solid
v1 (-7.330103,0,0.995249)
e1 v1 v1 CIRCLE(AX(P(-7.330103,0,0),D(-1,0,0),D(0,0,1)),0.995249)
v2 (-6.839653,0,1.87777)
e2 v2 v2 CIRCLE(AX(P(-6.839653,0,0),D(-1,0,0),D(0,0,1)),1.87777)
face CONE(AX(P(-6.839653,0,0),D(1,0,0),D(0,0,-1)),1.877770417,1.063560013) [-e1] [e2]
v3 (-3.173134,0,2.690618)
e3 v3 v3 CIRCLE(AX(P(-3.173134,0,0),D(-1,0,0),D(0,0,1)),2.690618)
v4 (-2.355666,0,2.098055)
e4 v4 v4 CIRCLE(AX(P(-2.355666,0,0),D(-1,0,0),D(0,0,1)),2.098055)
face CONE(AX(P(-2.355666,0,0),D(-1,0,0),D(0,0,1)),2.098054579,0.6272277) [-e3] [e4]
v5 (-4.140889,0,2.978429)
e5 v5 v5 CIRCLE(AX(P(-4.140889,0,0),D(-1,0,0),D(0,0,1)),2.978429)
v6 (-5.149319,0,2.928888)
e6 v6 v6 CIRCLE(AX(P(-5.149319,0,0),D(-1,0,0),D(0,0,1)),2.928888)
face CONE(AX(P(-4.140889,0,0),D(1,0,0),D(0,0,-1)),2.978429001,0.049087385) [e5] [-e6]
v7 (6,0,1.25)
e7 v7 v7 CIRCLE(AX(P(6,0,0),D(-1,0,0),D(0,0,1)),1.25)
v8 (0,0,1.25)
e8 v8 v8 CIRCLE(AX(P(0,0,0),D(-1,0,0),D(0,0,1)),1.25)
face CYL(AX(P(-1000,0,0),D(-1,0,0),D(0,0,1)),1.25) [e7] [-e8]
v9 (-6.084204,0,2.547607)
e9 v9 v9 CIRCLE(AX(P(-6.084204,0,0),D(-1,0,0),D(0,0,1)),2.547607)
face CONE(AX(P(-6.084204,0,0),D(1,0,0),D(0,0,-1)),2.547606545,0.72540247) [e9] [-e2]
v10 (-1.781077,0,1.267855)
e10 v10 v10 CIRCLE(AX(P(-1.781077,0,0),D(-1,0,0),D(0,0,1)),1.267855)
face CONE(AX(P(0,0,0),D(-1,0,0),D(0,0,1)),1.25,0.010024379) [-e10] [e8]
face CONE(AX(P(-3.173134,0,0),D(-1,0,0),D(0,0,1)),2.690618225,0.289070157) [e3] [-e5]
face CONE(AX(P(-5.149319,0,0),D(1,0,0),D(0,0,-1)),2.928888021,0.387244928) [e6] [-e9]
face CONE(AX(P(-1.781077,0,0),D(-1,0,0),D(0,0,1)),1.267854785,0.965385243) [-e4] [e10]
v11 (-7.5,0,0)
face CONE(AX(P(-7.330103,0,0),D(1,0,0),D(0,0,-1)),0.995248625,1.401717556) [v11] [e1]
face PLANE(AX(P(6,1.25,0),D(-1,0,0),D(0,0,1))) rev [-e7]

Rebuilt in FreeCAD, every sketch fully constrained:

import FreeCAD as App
import Part
import Sketcher

doc = App.newDocument("Part")
body = doc.addObject("PartDesign::Body", "Body")

sketch1 = body.newObject("Sketcher::SketchObject", "Sketch")
sketch1.AttachmentSupport = (doc.getObject("XY_Plane"), [""])
sketch1.MapMode = "FlatFace"
sketch1.addGeometry(Part.LineSegment(App.Vector(-7.3, 1, 0), App.Vector(-7.5, 0, 0)), False)
sketch1.addGeometry(Part.LineSegment(App.Vector(-7.5, 0, 0), App.Vector(6, 0, 0)), False)
sketch1.addGeometry(Part.LineSegment(App.Vector(6, 0, 0), App.Vector(6, 1.2, 0)), False)
sketch1.addGeometry(Part.LineSegment(App.Vector(6, 1.2, 0), App.Vector(0, 1.2, 0)), False)
sketch1.addGeometry(Part.LineSegment(App.Vector(0, 1.2, 0), App.Vector(-1.8, 1.3, 0)), False)
sketch1.addGeometry(Part.LineSegment(App.Vector(-1.8, 1.3, 0), App.Vector(-2.4, 2.1, 0)), False)
sketch1.addGeometry(Part.LineSegment(App.Vector(-2.4, 2.1, 0), App.Vector(-3.2, 2.7, 0)), False)
sketch1.addGeometry(Part.LineSegment(App.Vector(-3.2, 2.7, 0), App.Vector(-4.1, 3, 0)), False)
sketch1.addGeometry(Part.LineSegment(App.Vector(-4.1, 3, 0), App.Vector(-5.1, 2.9, 0)), False)
sketch1.addGeometry(Part.LineSegment(App.Vector(-5.1, 2.9, 0), App.Vector(-6.1, 2.5, 0)), False)
sketch1.addGeometry(Part.LineSegment(App.Vector(-6.1, 2.5, 0), App.Vector(-6.8, 1.9, 0)), False)
sketch1.addGeometry(Part.LineSegment(App.Vector(-6.8, 1.9, 0), App.Vector(-7.3, 1, 0)), False)
sketch1.addConstraint(Sketcher.Constraint("Coincident", 0, 2, 1, 1))
sketch1.addConstraint(Sketcher.Constraint("Coincident", 1, 2, 2, 1))
sketch1.addConstraint(Sketcher.Constraint("Coincident", 2, 2, 3, 1))
sketch1.addConstraint(Sketcher.Constraint("Coincident", 3, 2, 4, 1))
sketch1.addConstraint(Sketcher.Constraint("Coincident", 4, 2, 5, 1))
sketch1.addConstraint(Sketcher.Constraint("Coincident", 5, 2, 6, 1))
sketch1.addConstraint(Sketcher.Constraint("Coincident", 6, 2, 7, 1))
sketch1.addConstraint(Sketcher.Constraint("Coincident", 7, 2, 8, 1))
sketch1.addConstraint(Sketcher.Constraint("Coincident", 8, 2, 9, 1))
sketch1.addConstraint(Sketcher.Constraint("Coincident", 9, 2, 10, 1))
sketch1.addConstraint(Sketcher.Constraint("Coincident", 10, 2, 11, 1))
sketch1.addConstraint(Sketcher.Constraint("Coincident", 11, 2, 0, 1))
sketch1.addConstraint(Sketcher.Constraint("Horizontal", 1))
sketch1.addConstraint(Sketcher.Constraint("Vertical", 2))
sketch1.addConstraint(Sketcher.Constraint("Horizontal", 3))
sketch1.addConstraint(Sketcher.Constraint("PointOnObject", 0, 2, -1))
sketch1.addConstraint(Sketcher.Constraint("PointOnObject", 3, 2, -2))
sketch1.addConstraint(Sketcher.Constraint("Equal", 0, 5))
sketch1.addConstraint(Sketcher.Constraint("Equal", 5, 6))
sketch1.addConstraint(Sketcher.Constraint("Equal", 6, 7))
sketch1.addConstraint(Sketcher.Constraint("Equal", 7, 8))
sketch1.addConstraint(Sketcher.Constraint("Equal", 8, 9))
sketch1.addConstraint(Sketcher.Constraint("Equal", 9, 10))
sketch1.addConstraint(Sketcher.Constraint("Equal", 10, 11))
sketch1.addConstraint(Sketcher.Constraint("DistanceX", 3, 2, 3, 1, 6.0))
sketch1.addConstraint(Sketcher.Constraint("DistanceX", 1, 1, 1, 2, 13.5))
sketch1.addConstraint(Sketcher.Constraint("DistanceY", 2, 1, 2, 2, 1.25))
sketch1.addConstraint(Sketcher.Constraint("DistanceY", 4, 2, 5, 2, 0.8302))
sketch1.addConstraint(Sketcher.Constraint("DistanceX", 11, 2, 9, 2, 1.245899))
sketch1.addConstraint(Sketcher.Constraint("DistanceY", -1, 1, 6, 2, 2.690618))
sketch1.addConstraint(Sketcher.Constraint("DistanceX", 7, 2, -1, 1, 4.140889))
sketch1.addConstraint(Sketcher.Constraint("DistanceY", -1, 1, 7, 2, 2.978429))
sketch1.addConstraint(Sketcher.Constraint("DistanceX", 8, 2, -1, 1, 5.149319))
sketch1.addConstraint(Sketcher.Constraint("DistanceY", -1, 1, 8, 2, 2.928888))
sketch1.addConstraint(Sketcher.Constraint("DistanceY", -1, 1, 10, 2, 1.87777))
sketch1.addConstraint(Sketcher.Constraint("DistanceY", 5, 2, 9, 2, 0.449552))
revolution = body.newObject("PartDesign::Revolution", "Revolution")
revolution.Profile = sketch1
revolution.ReferenceAxis = (sketch1, ["H_Axis"])
revolution.Angle = 360

doc.recompute()
